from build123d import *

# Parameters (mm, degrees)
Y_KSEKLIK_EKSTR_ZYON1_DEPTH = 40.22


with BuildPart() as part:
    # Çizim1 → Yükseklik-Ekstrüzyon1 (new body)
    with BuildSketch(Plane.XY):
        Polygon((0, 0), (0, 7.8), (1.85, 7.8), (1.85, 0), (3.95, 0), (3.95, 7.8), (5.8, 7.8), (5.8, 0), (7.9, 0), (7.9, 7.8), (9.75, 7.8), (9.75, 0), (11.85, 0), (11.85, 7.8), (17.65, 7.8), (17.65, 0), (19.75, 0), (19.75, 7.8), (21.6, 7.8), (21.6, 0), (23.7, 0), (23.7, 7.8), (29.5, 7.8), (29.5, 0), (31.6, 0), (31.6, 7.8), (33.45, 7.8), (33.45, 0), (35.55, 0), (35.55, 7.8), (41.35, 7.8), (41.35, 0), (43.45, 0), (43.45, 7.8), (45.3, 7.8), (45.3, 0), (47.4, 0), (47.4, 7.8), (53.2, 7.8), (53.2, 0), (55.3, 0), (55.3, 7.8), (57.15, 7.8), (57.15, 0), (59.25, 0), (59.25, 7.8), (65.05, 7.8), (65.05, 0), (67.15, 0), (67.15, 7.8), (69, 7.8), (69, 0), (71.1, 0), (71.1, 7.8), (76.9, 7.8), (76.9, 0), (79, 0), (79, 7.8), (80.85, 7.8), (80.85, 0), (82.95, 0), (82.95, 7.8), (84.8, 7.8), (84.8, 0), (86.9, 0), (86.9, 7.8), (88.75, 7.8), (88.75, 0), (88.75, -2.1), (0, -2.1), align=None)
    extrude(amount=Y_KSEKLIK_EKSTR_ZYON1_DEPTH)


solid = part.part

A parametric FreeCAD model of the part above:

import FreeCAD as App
import Part
import Sketcher
from FreeCAD import Vector

doc = App.newDocument("Part")
params = doc.addObject("Spreadsheet::Sheet", "Params")
for row, (alias, value) in enumerate([
    ("sketch1_width", "2.1 mm"),
    ("sketch1_width2", "5.8 mm"),
    ("sketch1_height", "9.9 mm"),
    ("sketch1_height2", "7.8 mm"),
    ("pad1_length", "40.22 mm"),
], start=1):
    params.set(f"A{row}", alias)
    params.set(f"B{row}", "=" + value)
    params.setAlias(f"B{row}", alias)

body = doc.addObject("PartDesign::Body", "Body")

# Sketch on XY plane
sketch1 = doc.addObject("Sketcher::SketchObject", "Sketch")
body.addObject(sketch1)
sketch1.AttachmentSupport = (doc.XY_Plane, [""])
sketch1.MapMode = "FlatFace"
sketch1.addGeometry([
    Part.LineSegment(Vector(0, 7.8, 0), Vector(0, -2.1, 0)),  # 0
    Part.LineSegment(Vector(0, -2.1, 0), Vector(88.8, -2.1, 0)),  # 1
    Part.LineSegment(Vector(88.8, -2.1, 0), Vector(88.8, 7.8, 0)),  # 2
    Part.LineSegment(Vector(88.8, 7.8, 0), Vector(86.9, 7.8, 0)),  # 3
    Part.LineSegment(Vector(86.9, 7.8, 0), Vector(86.9, 0, 0)),  # 4
    Part.LineSegment(Vector(86.9, 0, 0), Vector(84.8, 0, 0)),  # 5
    Part.LineSegment(Vector(84.8, 0, 0), Vector(84.8, 7.8, 0)),  # 6
    Part.LineSegment(Vector(84.8, 7.8, 0), Vector(83, 7.8, 0)),  # 7
    Part.LineSegment(Vector(83, 7.8, 0), Vector(83, 0, 0)),  # 8
    Part.LineSegment(Vector(83, 0, 0), Vector(80.8, 0, 0)),  # 9
    Part.LineSegment(Vector(80.8, 0, 0), Vector(80.8, 7.8, 0)),  # 10
    Part.LineSegment(Vector(80.8, 7.8, 0), Vector(79, 7.8, 0)),  # 11
    Part.LineSegment(Vector(79, 7.8, 0), Vector(79, 0, 0)),  # 12
    Part.LineSegment(Vector(79, 0, 0), Vector(76.9, 0, 0)),  # 13
    Part.LineSegment(Vector(76.9, 0, 0), Vector(76.9, 7.8, 0)),  # 14
    Part.LineSegment(Vector(76.9, 7.8, 0), Vector(71.1, 7.8, 0)),  # 15
    Part.LineSegment(Vector(71.1, 7.8, 0), Vector(71.1, 0, 0)),  # 16
    Part.LineSegment(Vector(71.1, 0, 0), Vector(69, 0, 0)),  # 17
    Part.LineSegment(Vector(69, 0, 0), Vector(69, 7.8, 0)),  # 18
    Part.LineSegment(Vector(69, 7.8, 0), Vector(67.2, 7.8, 0)),  # 19
    Part.LineSegment(Vector(67.2, 7.8, 0), Vector(67.2, 0, 0)),  # 20
    Part.LineSegment(Vector(67.2, 0, 0), Vector(65, 0, 0)),  # 21
    Part.LineSegment(Vector(65, 0, 0), Vector(65, 7.8, 0)),  # 22
    Part.LineSegment(Vector(65, 7.8, 0), Vector(59.2, 7.8, 0)),  # 23
    Part.LineSegment(Vector(59.2, 7.8, 0), Vector(59.2, 0, 0)),  # 24
    Part.LineSegment(Vector(59.2, 0, 0), Vector(57.1, 0, 0)),  # 25
    Part.LineSegment(Vector(57.1, 0, 0), Vector(57.1, 7.8, 0)),  # 26
    Part.LineSegment(Vector(57.1, 7.8, 0), Vector(55.3, 7.8, 0)),  # 27
    Part.LineSegment(Vector(55.3, 7.8, 0), Vector(55.3, 0, 0)),  # 28
    Part.LineSegment(Vector(55.3, 0, 0), Vector(53.2, 0, 0)),  # 29
    Part.LineSegment(Vector(53.2, 0, 0), Vector(53.2, 7.8, 0)),  # 30
    Part.LineSegment(Vector(53.2, 7.8, 0), Vector(47.4, 7.8, 0)),  # 31
    Part.LineSegment(Vector(47.4, 7.8, 0), Vector(47.4, 0, 0)),  # 32
    Part.LineSegment(Vector(47.4, 0, 0), Vector(45.3, 0, 0)),  # 33
    Part.LineSegment(Vector(45.3, 0, 0), Vector(45.3, 7.8, 0)),  # 34
    Part.LineSegment(Vector(45.3, 7.8, 0), Vector(43.5, 7.8, 0)),  # 35
    Part.LineSegment(Vector(43.5, 7.8, 0), Vector(43.5, 0, 0)),  # 36
    Part.LineSegment(Vector(43.5, 0, 0), Vector(41.4, 0, 0)),  # 37
    Part.LineSegment(Vector(41.4, 0, 0), Vector(41.4, 7.8, 0)),  # 38
    Part.LineSegment(Vector(41.4, 7.8, 0), Vector(35.5, 7.8, 0)),  # 39
    Part.LineSegment(Vector(35.5, 7.8, 0), Vector(35.5, 0, 0)),  # 40
    Part.LineSegment(Vector(35.5, 0, 0), Vector(33.5, 0, 0)),  # 41
    Part.LineSegment(Vector(33.5, 0, 0), Vector(33.5, 7.8, 0)),  # 42
    Part.LineSegment(Vector(33.5, 7.8, 0), Vector(31.6, 7.8, 0)),  # 43
    Part.LineSegment(Vector(31.6, 7.8, 0), Vector(31.6, 0, 0)),  # 44
    Part.LineSegment(Vector(31.6, 0, 0), Vector(29.5, 0, 0)),  # 45
    Part.LineSegment(Vector(29.5, 0, 0), Vector(29.5, 7.8, 0)),  # 46
    Part.LineSegment(Vector(29.5, 7.8, 0), Vector(23.7, 7.8, 0)),  # 47
    Part.LineSegment(Vector(23.7, 7.8, 0), Vector(23.7, 0, 0)),  # 48
    Part.LineSegment(Vector(23.7, 0, 0), Vector(21.6, 0, 0)),  # 49
    Part.LineSegment(Vector(21.6, 0, 0), Vector(21.6, 7.8, 0)),  # 50
    Part.LineSegment(Vector(21.6, 7.8, 0), Vector(19.8, 7.8, 0)),  # 51
    Part.LineSegment(Vector(19.8, 7.8, 0), Vector(19.8, 0, 0)),  # 52
    Part.LineSegment(Vector(19.8, 0, 0), Vector(17.6, 0, 0)),  # 53
    Part.LineSegment(Vector(17.6, 0, 0), Vector(17.6, 7.8, 0)),  # 54
    Part.LineSegment(Vector(17.6, 7.8, 0), Vector(11.8, 7.8, 0)),  # 55
    Part.LineSegment(Vector(11.8, 7.8, 0), Vector(11.8, 0, 0)),  # 56
    Part.LineSegment(Vector(11.8, 0, 0), Vector(9.8, 0, 0)),  # 57
    Part.LineSegment(Vector(9.8, 0, 0), Vector(9.8, 7.8, 0)),  # 58
    Part.LineSegment(Vector(9.8, 7.8, 0), Vector(7.9, 7.8, 0)),  # 59
    Part.LineSegment(Vector(7.9, 7.8, 0), Vector(7.9, 0, 0)),  # 60
    Part.LineSegment(Vector(7.9, 0, 0), Vector(5.8, 0, 0)),  # 61
    Part.LineSegment(Vector(5.8, 0, 0), Vector(5.8, 7.8, 0)),  # 62
    Part.LineSegment(Vector(5.8, 7.8, 0), Vector(4, 7.8, 0)),  # 63
    Part.LineSegment(Vector(4, 7.8, 0), Vector(4, 0, 0)),  # 64
    Part.LineSegment(Vector(4, 0, 0), Vector(1.9, 0, 0)),  # 65
    Part.LineSegment(Vector(1.9, 0, 0), Vector(1.9, 7.8, 0)),  # 66
    Part.LineSegment(Vector(1.9, 7.8, 0), Vector(0, 7.8, 0)),  # 67
], False)
sketch1.addConstraint([
    Sketcher.Constraint("Coincident", 0, 2, 1, 1),
    Sketcher.Constraint("Coincident", 1, 2, 2, 1),
    Sketcher.Constraint("Coincident", 2, 2, 3, 1),
    Sketcher.Constraint("Coincident", 3, 2, 4, 1),
    Sketcher.Constraint("Coincident", 4, 2, 5, 1),
    Sketcher.Constraint("Coincident", 5, 2, 6, 1),
    Sketcher.Constraint("Coincident", 6, 2, 7, 1),
    Sketcher.Constraint("Coincident", 7, 2, 8, 1),
    Sketcher.Constraint("Coincident", 8, 2, 9, 1),
    Sketcher.Constraint("Coincident", 9, 2, 10, 1),
    Sketcher.Constraint("Coincident", 10, 2, 11, 1),
    Sketcher.Constraint("Coincident", 11, 2, 12, 1),
    Sketcher.Constraint("Coincident", 12, 2, 13, 1),
    Sketcher.Constraint("Coincident", 13, 2, 14, 1),
    Sketcher.Constraint("Coincident", 14, 2, 15, 1),
    Sketcher.Constraint("Coincident", 15, 2, 16, 1),
    Sketcher.Constraint("Coincident", 16, 2, 17, 1),
    Sketcher.Constraint("Coincident", 17, 2, 18, 1),
    Sketcher.Constraint("Coincident", 18, 2, 19, 1),
    Sketcher.Constraint("Coincident", 19, 2, 20, 1),
    Sketcher.Constraint("Coincident", 20, 2, 21, 1),
    Sketcher.Constraint("Coincident", 21, 2, 22, 1),
    Sketcher.Constraint("Coincident", 22, 2, 23, 1),
    Sketcher.Constraint("Coincident", 23, 2, 24, 1),
    Sketcher.Constraint("Coincident", 24, 2, 25, 1),
    Sketcher.Constraint("Coincident", 25, 2, 26, 1),
    Sketcher.Constraint("Coincident", 26, 2, 27, 1),
    Sketcher.Constraint("Coincident", 27, 2, 28, 1),
    Sketcher.Constraint("Coincident", 28, 2, 29, 1),
    Sketcher.Constraint("Coincident", 29, 2, 30, 1),
    Sketcher.Constraint("Coincident", 30, 2, 31, 1),
    Sketcher.Constraint("Coincident", 31, 2, 32, 1),
    Sketcher.Constraint("Coincident", 32, 2, 33, 1),
    Sketcher.Constraint("Coincident", 33, 2, 34, 1),
    Sketcher.Constraint("Coincident", 34, 2, 35, 1),
    Sketcher.Constraint("Coincident", 35, 2, 36, 1),
    Sketcher.Constraint("Coincident", 36, 2, 37, 1),
    Sketcher.Constraint("Coincident", 37, 2, 38, 1),
    Sketcher.Constraint("Coincident", 38, 2, 39, 1),
    Sketcher.Constraint("Coincident", 39, 2, 40, 1),
    Sketcher.Constraint("Coincident", 40, 2, 41, 1),
    Sketcher.Constraint("Coincident", 41, 2, 42, 1),
    Sketcher.Constraint("Coincident", 42, 2, 43, 1),
    Sketcher.Constraint("Coincident", 43, 2, 44, 1),
    Sketcher.Constraint("Coincident", 44, 2, 45, 1),
    Sketcher.Constraint("Coincident", 45, 2, 46, 1),
    Sketcher.Constraint("Coincident", 46, 2, 47, 1),
    Sketcher.Constraint("Coincident", 47, 2, 48, 1),
    Sketcher.Constraint("Coincident", 48, 2, 49, 1),
    Sketcher.Constraint("Coincident", 49, 2, 50, 1),
    Sketcher.Constraint("Coincident", 50, 2, 51, 1),
    Sketcher.Constraint("Coincident", 51, 2, 52, 1),
    Sketcher.Constraint("Coincident", 52, 2, 53, 1),
    Sketcher.Constraint("Coincident", 53, 2, 54, 1),
    Sketcher.Constraint("Coincident", 54, 2, 55, 1),
    Sketcher.Constraint("Coincident", 55, 2, 56, 1),
    Sketcher.Constraint("Coincident", 56, 2, 57, 1),
    Sketcher.Constraint("Coincident", 57, 2, 58, 1),
    Sketcher.Constraint("Coincident", 58, 2, 59, 1),
    Sketcher.Constraint("Coincident", 59, 2, 60, 1),
    Sketcher.Constraint("Coincident", 60, 2, 61, 1),
    Sketcher.Constraint("Coincident", 61, 2, 62, 1),
    Sketcher.Constraint("Coincident", 62, 2, 63, 1),
    Sketcher.Constraint("Coincident", 63, 2, 64, 1),
    Sketcher.Constraint("Coincident", 64, 2, 65, 1),
    Sketcher.Constraint("Coincident", 65, 2, 66, 1),
    Sketcher.Constraint("Coincident", 66, 2, 67, 1),
    Sketcher.Constraint("Coincident", 67, 2, 0, 1),
    Sketcher.Constraint("Vertical", 0),
    Sketcher.Constraint("Horizontal", 1),
    Sketcher.Constraint("Vertical", 2),
    Sketcher.Constraint("Horizontal", 3),
    Sketcher.Constraint("Vertical", 4),
    Sketcher.Constraint("Horizontal", 5),
    Sketcher.Constraint("Vertical", 6),
    Sketcher.Constraint("Horizontal", 7),
    Sketcher.Constraint("Vertical", 8),
    Sketcher.Constraint("Horizontal", 9),
    Sketcher.Constraint("Vertical", 10),
    Sketcher.Constraint("Horizontal", 11),
    Sketcher.Constraint("Vertical", 12),
    Sketcher.Constraint("Horizontal", 13),
    Sketcher.Constraint("Vertical", 14),
    Sketcher.Constraint("Horizontal", 15),
    Sketcher.Constraint("Vertical", 16),
    Sketcher.Constraint("Horizontal", 17),
    Sketcher.Constraint("Vertical", 18),
    Sketcher.Constraint("Horizontal", 19),
    Sketcher.Constraint("Vertical", 20),
    Sketcher.Constraint("Horizontal", 21),
    Sketcher.Constraint("Vertical", 22),
    Sketcher.Constraint("Horizontal", 23),
    Sketcher.Constraint("Vertical", 24),
    Sketcher.Constraint("Horizontal", 25),
    Sketcher.Constraint("Vertical", 26),
    Sketcher.Constraint("Horizontal", 27),
    Sketcher.Constraint("Vertical", 28),
    Sketcher.Constraint("Horizontal", 29),
    Sketcher.Constraint("Vertical", 30),
    Sketcher.Constraint("Horizontal", 31),
    Sketcher.Constraint("Vertical", 32),
    Sketcher.Constraint("Horizontal", 33),
    Sketcher.Constraint("Vertical", 34),
    Sketcher.Constraint("Horizontal", 35),
    Sketcher.Constraint("Vertical", 36),
    Sketcher.Constraint("Horizontal", 37),
    Sketcher.Constraint("Vertical", 38),
    Sketcher.Constraint("Horizontal", 39),
    Sketcher.Constraint("Vertical", 40),
    Sketcher.Constraint("Horizontal", 41),
    Sketcher.Constraint("Vertical", 42),
    Sketcher.Constraint("Horizontal", 43),
    Sketcher.Constraint("Vertical", 44),
    Sketcher.Constraint("Horizontal", 45),
    Sketcher.Constraint("Vertical", 46),
    Sketcher.Constraint("Horizontal", 47),
    Sketcher.Constraint("Vertical", 48),
    Sketcher.Constraint("Horizontal", 49),
    Sketcher.Constraint("Vertical", 50),
    Sketcher.Constraint("Horizontal", 51),
    Sketcher.Constraint("Vertical", 52),
    Sketcher.Constraint("Horizontal", 53),
    Sketcher.Constraint("Vertical", 54),
    Sketcher.Constraint("Horizontal", 55),
    Sketcher.Constraint("Vertical", 56),
    Sketcher.Constraint("Horizontal", 57),
    Sketcher.Constraint("Vertical", 58),
    Sketcher.Constraint("Horizontal", 59),
    Sketcher.Constraint("Vertical", 60),
    Sketcher.Constraint("Horizontal", 61),
    Sketcher.Constraint("Vertical", 62),
    Sketcher.Constraint("Horizontal", 63),
    Sketcher.Constraint("Vertical", 64),
    Sketcher.Constraint("Horizontal", 65),
    Sketcher.Constraint("Vertical", 66),
    Sketcher.Constraint("Horizontal", 67),
    Sketcher.Constraint("PointOnObject", 0, 2, -2),
    Sketcher.Constraint("PointOnObject", 4, 2, -1),
    Sketcher.Constraint("PointOnObject", 8, 2, -1),
    Sketcher.Constraint("PointOnObject", 12, 2, -1),
    Sketcher.Constraint("PointOnObject", 16, 2, -1),
    Sketcher.Constraint("PointOnObject", 20, 2, -1),
    Sketcher.Constraint("PointOnObject", 24, 2, -1),
    Sketcher.Constraint("PointOnObject", 28, 2, -1),
    Sketcher.Constraint("PointOnObject", 32, 2, -1),
    Sketcher.Constraint("PointOnObject", 36, 2, -1),
    Sketcher.Constraint("PointOnObject", 40, 2, -1),
    Sketcher.Constraint("PointOnObject", 44, 2, -1),
    Sketcher.Constraint("PointOnObject", 48, 2, -1),
    Sketcher.Constraint("PointOnObject", 52, 2, -1),
    Sketcher.Constraint("PointOnObject", 56, 2, -1),
    Sketcher.Constraint("PointOnObject", 60, 2, -1),
    Sketcher.Constraint("PointOnObject", 64, 2, -1),
    Sketcher.Constraint("Horizontal", 3, 2, 6, 2),
    Sketcher.Constraint("Horizontal", 7, 2, 10, 2),
    Sketcher.Constraint("Horizontal", 11, 2, 14, 2),
    Sketcher.Constraint("Horizontal", 15, 2, 18, 2),
    Sketcher.Constraint("Horizontal", 19, 2, 22, 2),
    Sketcher.Constraint("Horizontal", 23, 2, 26, 2),
    Sketcher.Constraint("Horizontal", 27, 2, 30, 2),
    Sketcher.Constraint("Horizontal", 31, 2, 34, 2),
    Sketcher.Constraint("Horizontal", 35, 2, 38, 2),
    Sketcher.Constraint("Horizontal", 39, 2, 42, 2),
    Sketcher.Constraint("Horizontal", 43, 2, 46, 2),
    Sketcher.Constraint("Horizontal", 47, 2, 50, 2),
    Sketcher.Constraint("Horizontal", 51, 2, 54, 2),
    Sketcher.Constraint("Horizontal", 55, 2, 58, 2),
    Sketcher.Constraint("Horizontal", 59, 2, 62, 2),
    Sketcher.Constraint("Horizontal", 63, 2, 66, 2),
    Sketcher.Constraint("Equal", 3, 7),
    Sketcher.Constraint("Equal", 5, 9),
    Sketcher.Constraint("Equal", 7, 11),
    Sketcher.Constraint("Equal", 9, 13),
    Sketcher.Constraint("Equal", 13, 17),
    Sketcher.Constraint("Equal", 11, 19),
    Sketcher.Constraint("Equal", 17, 21),
    Sketcher.Constraint("Equal", 15, 23),
    Sketcher.Constraint("Equal", 21, 25),
    Sketcher.Constraint("Equal", 19, 27),
    Sketcher.Constraint("Equal", 25, 29),
    Sketcher.Constraint("Equal", 23, 31),
    Sketcher.Constraint("Equal", 29, 33),
    Sketcher.Constraint("Equal", 27, 35),
    Sketcher.Constraint("Equal", 33, 37),
    Sketcher.Constraint("Equal", 31, 39),
    Sketcher.Constraint("Equal", 37, 41),
    Sketcher.Constraint("Equal", 35, 43),
    Sketcher.Constraint("Equal", 41, 45),
    Sketcher.Constraint("Equal", 39, 47),
    Sketcher.Constraint("Equal", 45, 49),
    Sketcher.Constraint("Equal", 43, 51),
    Sketcher.Constraint("Equal", 49, 53),
    Sketcher.Constraint("Equal", 47, 55),
    Sketcher.Constraint("Equal", 53, 57),
    Sketcher.Constraint("Equal", 51, 59),
    Sketcher.Constraint("Equal", 57, 61),
    Sketcher.Constraint("Equal", 59, 63),
    Sketcher.Constraint("Equal", 61, 65),
    Sketcher.Constraint("Equal", 63, 67),
    Sketcher.Constraint("DistanceX", 5, 2, 5, 1, 2.1),
    Sketcher.Constraint("DistanceX", 15, 2, 15, 1, 5.8),
    Sketcher.Constraint("DistanceY", 0, 2, 0, 1, 9.9),
    Sketcher.Constraint("DistanceY", 4, 2, 4, 1, 7.8),
    Sketcher.Constraint("DistanceX", -1, 1, 11, 2, 79.0),
])
sketch1.setExpression("Constraints[199]", "Params.sketch1_width")
sketch1.setExpression("Constraints[200]", "Params.sketch1_width2")
sketch1.setExpression("Constraints[201]", "Params.sketch1_height")
sketch1.setExpression("Constraints[202]", "Params.sketch1_height2")
pad1 = doc.addObject("PartDesign::Pad", "Pad")
body.addObject(pad1)
pad1.Profile = sketch1
pad1.setExpression("Length", "Params.pad1_length")

doc.recompute()
